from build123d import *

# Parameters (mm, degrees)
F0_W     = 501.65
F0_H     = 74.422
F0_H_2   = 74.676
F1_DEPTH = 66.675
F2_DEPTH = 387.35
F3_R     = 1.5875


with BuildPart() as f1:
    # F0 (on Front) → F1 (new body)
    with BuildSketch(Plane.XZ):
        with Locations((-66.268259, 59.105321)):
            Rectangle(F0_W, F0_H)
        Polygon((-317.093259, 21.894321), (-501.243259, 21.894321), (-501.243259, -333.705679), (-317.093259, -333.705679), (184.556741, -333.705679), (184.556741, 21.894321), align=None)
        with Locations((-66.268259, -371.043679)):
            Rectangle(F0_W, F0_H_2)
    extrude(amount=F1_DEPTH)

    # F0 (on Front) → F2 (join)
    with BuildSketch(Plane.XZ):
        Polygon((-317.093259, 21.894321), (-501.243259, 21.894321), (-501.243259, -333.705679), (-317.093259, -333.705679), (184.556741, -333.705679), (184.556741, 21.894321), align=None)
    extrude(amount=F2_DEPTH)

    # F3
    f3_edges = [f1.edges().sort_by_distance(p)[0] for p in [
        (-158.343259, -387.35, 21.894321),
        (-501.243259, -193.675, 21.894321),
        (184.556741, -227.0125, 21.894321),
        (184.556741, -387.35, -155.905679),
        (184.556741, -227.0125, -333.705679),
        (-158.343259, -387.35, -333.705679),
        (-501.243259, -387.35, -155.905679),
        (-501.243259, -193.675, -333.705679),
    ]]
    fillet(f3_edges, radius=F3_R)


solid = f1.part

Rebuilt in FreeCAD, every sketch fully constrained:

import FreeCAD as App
import Part
import Sketcher
from FreeCAD import Vector
Q = App.Units.Quantity


def edges_at(feature, points):
    """Names of the edges that pass closest to the given points."""
    edges = feature.Shape.Edges
    near = lambda p: min(range(len(edges)), key=lambda i: edges[i].distToShape(Part.Vertex(*p))[0])
    return sorted({f"Edge{near(p) + 1}" for p in points})

doc = App.newDocument("Part")
body = doc.addObject("PartDesign::Body", "Body")

# Sketch on XZ plane
sketch1 = body.newObject("Sketcher::SketchObject", "Sketch")
sketch1.AttachmentSupport = (doc.getObject("XZ_Plane"), [""])
sketch1.MapMode = "FlatFace"
sketch1.addGeometry([
    Part.LineSegment(Vector(-317, 96, 0), Vector(-317, 22, 0)),  # 0
    Part.LineSegment(Vector(-317, 22, 0), Vector(-501, 22, 0)),  # 1
    Part.LineSegment(Vector(-501, 22, 0), Vector(-501, -334, 0)),  # 2
    Part.LineSegment(Vector(-501, -334, 0), Vector(-317, -334, 0)),  # 3
    Part.LineSegment(Vector(-317, -334, 0), Vector(-317, -408, 0)),  # 4
    Part.LineSegment(Vector(-317, -408, 0), Vector(185, -408, 0)),  # 5
    Part.LineSegment(Vector(185, -408, 0), Vector(185, 96, 0)),  # 6
    Part.LineSegment(Vector(185, 96, 0), Vector(-317, 96, 0)),  # 7
], False)
sketch1.addConstraint([
    Sketcher.Constraint("Coincident", 0, 2, 1, 1),
    Sketcher.Constraint("Coincident", 1, 2, 2, 1),
    Sketcher.Constraint("Coincident", 2, 2, 3, 1),
    Sketcher.Constraint("Coincident", 3, 2, 4, 1),
    Sketcher.Constraint("Coincident", 4, 2, 5, 1),
    Sketcher.Constraint("Coincident", 5, 2, 6, 1),
    Sketcher.Constraint("Coincident", 6, 2, 7, 1),
    Sketcher.Constraint("Coincident", 7, 2, 0, 1),
    Sketcher.Constraint("Vertical", 0),
    Sketcher.Constraint("Horizontal", 1),
    Sketcher.Constraint("Vertical", 2),
    Sketcher.Constraint("Horizontal", 3),
    Sketcher.Constraint("Vertical", 4),
    Sketcher.Constraint("Horizontal", 5),
    Sketcher.Constraint("Vertical", 6),
    Sketcher.Constraint("Horizontal", 7),
    Sketcher.Constraint("Vertical", 0, 2, 3, 2),
    Sketcher.Constraint("DistanceY", 2, 2, 2, 1, Q("14 in")),
    Sketcher.Constraint("DistanceX", 2, 2, 5, 2, Q("27 in")),
    Sketcher.Constraint("DistanceX", 1, 2, 1, 1, Q("7.25 in")),
    Sketcher.Constraint("DistanceY", 0, 2, 0, 1, Q("2.93 in")),
    Sketcher.Constraint("DistanceY", 4, 2, 4, 1, Q("2.94 in")),
    Sketcher.Constraint("DistanceX", 0, 2, -1, 1, 317.093259),
    Sketcher.Constraint("DistanceY", -1, 1, 0, 2, 21.894321),
])
pad1 = body.newObject("PartDesign::Pad", "Pad")
pad1.Profile = sketch1
pad1.Length = Q("2.625 in")

# Sketch on XZ plane
sketch2 = body.newObject("Sketcher::SketchObject", "Sketch001")
sketch2.AttachmentSupport = (doc.getObject("XZ_Plane"), [""])
sketch2.MapMode = "FlatFace"
sketch2.addGeometry([
    Part.LineSegment(Vector(-501, 22, 0), Vector(-501, -334, 0)),
    Part.LineSegment(Vector(-501, -334, 0), Vector(185, -334, 0)),
    Part.LineSegment(Vector(185, -334, 0), Vector(185, 22, 0)),
    Part.LineSegment(Vector(185, 22, 0), Vector(-501, 22, 0)),
], False)
sketch2.addConstraint([
    Sketcher.Constraint("Coincident", 0, 2, 1, 1),
    Sketcher.Constraint("Coincident", 1, 2, 2, 1),
    Sketcher.Constraint("Coincident", 2, 2, 3, 1),
    Sketcher.Constraint("Coincident", 3, 2, 0, 1),
    Sketcher.Constraint("Vertical", 0),
    Sketcher.Constraint("Horizontal", 1),
    Sketcher.Constraint("Vertical", 2),
    Sketcher.Constraint("Horizontal", 3),
    Sketcher.Constraint("DistanceX", 1, 1, 1, 2, Q("27 in")),
    Sketcher.Constraint("DistanceY", 0, 2, 0, 1, Q("14 in")),
    Sketcher.Constraint("DistanceX", 0, 2, -1, 1, 501.243259),
    Sketcher.Constraint("DistanceY", 0, 2, -1, 1, 333.705679),
])
pad2 = body.newObject("PartDesign::Pad", "Pad001")
pad2.Profile = sketch2
pad2.Length = Q("15.25 in")
doc.recompute()

fillet = body.newObject("PartDesign::Fillet", "Fillet")
fillet.Base = (pad2, edges_at(pad2, [
    (-158.343, -387.35, 21.894),
    (-501.243, -193.675, 21.894),
    (184.557, -227.012, 21.894),
    (184.557, -387.35, -155.906),
    (184.557, -227.012, -333.706),
    (-158.343, -387.35, -333.706),
    (-501.243, -387.35, -155.906),
    (-501.243, -193.675, -333.706),
]))
fillet.Radius = Q("0.0625 in")

doc.recompute()
